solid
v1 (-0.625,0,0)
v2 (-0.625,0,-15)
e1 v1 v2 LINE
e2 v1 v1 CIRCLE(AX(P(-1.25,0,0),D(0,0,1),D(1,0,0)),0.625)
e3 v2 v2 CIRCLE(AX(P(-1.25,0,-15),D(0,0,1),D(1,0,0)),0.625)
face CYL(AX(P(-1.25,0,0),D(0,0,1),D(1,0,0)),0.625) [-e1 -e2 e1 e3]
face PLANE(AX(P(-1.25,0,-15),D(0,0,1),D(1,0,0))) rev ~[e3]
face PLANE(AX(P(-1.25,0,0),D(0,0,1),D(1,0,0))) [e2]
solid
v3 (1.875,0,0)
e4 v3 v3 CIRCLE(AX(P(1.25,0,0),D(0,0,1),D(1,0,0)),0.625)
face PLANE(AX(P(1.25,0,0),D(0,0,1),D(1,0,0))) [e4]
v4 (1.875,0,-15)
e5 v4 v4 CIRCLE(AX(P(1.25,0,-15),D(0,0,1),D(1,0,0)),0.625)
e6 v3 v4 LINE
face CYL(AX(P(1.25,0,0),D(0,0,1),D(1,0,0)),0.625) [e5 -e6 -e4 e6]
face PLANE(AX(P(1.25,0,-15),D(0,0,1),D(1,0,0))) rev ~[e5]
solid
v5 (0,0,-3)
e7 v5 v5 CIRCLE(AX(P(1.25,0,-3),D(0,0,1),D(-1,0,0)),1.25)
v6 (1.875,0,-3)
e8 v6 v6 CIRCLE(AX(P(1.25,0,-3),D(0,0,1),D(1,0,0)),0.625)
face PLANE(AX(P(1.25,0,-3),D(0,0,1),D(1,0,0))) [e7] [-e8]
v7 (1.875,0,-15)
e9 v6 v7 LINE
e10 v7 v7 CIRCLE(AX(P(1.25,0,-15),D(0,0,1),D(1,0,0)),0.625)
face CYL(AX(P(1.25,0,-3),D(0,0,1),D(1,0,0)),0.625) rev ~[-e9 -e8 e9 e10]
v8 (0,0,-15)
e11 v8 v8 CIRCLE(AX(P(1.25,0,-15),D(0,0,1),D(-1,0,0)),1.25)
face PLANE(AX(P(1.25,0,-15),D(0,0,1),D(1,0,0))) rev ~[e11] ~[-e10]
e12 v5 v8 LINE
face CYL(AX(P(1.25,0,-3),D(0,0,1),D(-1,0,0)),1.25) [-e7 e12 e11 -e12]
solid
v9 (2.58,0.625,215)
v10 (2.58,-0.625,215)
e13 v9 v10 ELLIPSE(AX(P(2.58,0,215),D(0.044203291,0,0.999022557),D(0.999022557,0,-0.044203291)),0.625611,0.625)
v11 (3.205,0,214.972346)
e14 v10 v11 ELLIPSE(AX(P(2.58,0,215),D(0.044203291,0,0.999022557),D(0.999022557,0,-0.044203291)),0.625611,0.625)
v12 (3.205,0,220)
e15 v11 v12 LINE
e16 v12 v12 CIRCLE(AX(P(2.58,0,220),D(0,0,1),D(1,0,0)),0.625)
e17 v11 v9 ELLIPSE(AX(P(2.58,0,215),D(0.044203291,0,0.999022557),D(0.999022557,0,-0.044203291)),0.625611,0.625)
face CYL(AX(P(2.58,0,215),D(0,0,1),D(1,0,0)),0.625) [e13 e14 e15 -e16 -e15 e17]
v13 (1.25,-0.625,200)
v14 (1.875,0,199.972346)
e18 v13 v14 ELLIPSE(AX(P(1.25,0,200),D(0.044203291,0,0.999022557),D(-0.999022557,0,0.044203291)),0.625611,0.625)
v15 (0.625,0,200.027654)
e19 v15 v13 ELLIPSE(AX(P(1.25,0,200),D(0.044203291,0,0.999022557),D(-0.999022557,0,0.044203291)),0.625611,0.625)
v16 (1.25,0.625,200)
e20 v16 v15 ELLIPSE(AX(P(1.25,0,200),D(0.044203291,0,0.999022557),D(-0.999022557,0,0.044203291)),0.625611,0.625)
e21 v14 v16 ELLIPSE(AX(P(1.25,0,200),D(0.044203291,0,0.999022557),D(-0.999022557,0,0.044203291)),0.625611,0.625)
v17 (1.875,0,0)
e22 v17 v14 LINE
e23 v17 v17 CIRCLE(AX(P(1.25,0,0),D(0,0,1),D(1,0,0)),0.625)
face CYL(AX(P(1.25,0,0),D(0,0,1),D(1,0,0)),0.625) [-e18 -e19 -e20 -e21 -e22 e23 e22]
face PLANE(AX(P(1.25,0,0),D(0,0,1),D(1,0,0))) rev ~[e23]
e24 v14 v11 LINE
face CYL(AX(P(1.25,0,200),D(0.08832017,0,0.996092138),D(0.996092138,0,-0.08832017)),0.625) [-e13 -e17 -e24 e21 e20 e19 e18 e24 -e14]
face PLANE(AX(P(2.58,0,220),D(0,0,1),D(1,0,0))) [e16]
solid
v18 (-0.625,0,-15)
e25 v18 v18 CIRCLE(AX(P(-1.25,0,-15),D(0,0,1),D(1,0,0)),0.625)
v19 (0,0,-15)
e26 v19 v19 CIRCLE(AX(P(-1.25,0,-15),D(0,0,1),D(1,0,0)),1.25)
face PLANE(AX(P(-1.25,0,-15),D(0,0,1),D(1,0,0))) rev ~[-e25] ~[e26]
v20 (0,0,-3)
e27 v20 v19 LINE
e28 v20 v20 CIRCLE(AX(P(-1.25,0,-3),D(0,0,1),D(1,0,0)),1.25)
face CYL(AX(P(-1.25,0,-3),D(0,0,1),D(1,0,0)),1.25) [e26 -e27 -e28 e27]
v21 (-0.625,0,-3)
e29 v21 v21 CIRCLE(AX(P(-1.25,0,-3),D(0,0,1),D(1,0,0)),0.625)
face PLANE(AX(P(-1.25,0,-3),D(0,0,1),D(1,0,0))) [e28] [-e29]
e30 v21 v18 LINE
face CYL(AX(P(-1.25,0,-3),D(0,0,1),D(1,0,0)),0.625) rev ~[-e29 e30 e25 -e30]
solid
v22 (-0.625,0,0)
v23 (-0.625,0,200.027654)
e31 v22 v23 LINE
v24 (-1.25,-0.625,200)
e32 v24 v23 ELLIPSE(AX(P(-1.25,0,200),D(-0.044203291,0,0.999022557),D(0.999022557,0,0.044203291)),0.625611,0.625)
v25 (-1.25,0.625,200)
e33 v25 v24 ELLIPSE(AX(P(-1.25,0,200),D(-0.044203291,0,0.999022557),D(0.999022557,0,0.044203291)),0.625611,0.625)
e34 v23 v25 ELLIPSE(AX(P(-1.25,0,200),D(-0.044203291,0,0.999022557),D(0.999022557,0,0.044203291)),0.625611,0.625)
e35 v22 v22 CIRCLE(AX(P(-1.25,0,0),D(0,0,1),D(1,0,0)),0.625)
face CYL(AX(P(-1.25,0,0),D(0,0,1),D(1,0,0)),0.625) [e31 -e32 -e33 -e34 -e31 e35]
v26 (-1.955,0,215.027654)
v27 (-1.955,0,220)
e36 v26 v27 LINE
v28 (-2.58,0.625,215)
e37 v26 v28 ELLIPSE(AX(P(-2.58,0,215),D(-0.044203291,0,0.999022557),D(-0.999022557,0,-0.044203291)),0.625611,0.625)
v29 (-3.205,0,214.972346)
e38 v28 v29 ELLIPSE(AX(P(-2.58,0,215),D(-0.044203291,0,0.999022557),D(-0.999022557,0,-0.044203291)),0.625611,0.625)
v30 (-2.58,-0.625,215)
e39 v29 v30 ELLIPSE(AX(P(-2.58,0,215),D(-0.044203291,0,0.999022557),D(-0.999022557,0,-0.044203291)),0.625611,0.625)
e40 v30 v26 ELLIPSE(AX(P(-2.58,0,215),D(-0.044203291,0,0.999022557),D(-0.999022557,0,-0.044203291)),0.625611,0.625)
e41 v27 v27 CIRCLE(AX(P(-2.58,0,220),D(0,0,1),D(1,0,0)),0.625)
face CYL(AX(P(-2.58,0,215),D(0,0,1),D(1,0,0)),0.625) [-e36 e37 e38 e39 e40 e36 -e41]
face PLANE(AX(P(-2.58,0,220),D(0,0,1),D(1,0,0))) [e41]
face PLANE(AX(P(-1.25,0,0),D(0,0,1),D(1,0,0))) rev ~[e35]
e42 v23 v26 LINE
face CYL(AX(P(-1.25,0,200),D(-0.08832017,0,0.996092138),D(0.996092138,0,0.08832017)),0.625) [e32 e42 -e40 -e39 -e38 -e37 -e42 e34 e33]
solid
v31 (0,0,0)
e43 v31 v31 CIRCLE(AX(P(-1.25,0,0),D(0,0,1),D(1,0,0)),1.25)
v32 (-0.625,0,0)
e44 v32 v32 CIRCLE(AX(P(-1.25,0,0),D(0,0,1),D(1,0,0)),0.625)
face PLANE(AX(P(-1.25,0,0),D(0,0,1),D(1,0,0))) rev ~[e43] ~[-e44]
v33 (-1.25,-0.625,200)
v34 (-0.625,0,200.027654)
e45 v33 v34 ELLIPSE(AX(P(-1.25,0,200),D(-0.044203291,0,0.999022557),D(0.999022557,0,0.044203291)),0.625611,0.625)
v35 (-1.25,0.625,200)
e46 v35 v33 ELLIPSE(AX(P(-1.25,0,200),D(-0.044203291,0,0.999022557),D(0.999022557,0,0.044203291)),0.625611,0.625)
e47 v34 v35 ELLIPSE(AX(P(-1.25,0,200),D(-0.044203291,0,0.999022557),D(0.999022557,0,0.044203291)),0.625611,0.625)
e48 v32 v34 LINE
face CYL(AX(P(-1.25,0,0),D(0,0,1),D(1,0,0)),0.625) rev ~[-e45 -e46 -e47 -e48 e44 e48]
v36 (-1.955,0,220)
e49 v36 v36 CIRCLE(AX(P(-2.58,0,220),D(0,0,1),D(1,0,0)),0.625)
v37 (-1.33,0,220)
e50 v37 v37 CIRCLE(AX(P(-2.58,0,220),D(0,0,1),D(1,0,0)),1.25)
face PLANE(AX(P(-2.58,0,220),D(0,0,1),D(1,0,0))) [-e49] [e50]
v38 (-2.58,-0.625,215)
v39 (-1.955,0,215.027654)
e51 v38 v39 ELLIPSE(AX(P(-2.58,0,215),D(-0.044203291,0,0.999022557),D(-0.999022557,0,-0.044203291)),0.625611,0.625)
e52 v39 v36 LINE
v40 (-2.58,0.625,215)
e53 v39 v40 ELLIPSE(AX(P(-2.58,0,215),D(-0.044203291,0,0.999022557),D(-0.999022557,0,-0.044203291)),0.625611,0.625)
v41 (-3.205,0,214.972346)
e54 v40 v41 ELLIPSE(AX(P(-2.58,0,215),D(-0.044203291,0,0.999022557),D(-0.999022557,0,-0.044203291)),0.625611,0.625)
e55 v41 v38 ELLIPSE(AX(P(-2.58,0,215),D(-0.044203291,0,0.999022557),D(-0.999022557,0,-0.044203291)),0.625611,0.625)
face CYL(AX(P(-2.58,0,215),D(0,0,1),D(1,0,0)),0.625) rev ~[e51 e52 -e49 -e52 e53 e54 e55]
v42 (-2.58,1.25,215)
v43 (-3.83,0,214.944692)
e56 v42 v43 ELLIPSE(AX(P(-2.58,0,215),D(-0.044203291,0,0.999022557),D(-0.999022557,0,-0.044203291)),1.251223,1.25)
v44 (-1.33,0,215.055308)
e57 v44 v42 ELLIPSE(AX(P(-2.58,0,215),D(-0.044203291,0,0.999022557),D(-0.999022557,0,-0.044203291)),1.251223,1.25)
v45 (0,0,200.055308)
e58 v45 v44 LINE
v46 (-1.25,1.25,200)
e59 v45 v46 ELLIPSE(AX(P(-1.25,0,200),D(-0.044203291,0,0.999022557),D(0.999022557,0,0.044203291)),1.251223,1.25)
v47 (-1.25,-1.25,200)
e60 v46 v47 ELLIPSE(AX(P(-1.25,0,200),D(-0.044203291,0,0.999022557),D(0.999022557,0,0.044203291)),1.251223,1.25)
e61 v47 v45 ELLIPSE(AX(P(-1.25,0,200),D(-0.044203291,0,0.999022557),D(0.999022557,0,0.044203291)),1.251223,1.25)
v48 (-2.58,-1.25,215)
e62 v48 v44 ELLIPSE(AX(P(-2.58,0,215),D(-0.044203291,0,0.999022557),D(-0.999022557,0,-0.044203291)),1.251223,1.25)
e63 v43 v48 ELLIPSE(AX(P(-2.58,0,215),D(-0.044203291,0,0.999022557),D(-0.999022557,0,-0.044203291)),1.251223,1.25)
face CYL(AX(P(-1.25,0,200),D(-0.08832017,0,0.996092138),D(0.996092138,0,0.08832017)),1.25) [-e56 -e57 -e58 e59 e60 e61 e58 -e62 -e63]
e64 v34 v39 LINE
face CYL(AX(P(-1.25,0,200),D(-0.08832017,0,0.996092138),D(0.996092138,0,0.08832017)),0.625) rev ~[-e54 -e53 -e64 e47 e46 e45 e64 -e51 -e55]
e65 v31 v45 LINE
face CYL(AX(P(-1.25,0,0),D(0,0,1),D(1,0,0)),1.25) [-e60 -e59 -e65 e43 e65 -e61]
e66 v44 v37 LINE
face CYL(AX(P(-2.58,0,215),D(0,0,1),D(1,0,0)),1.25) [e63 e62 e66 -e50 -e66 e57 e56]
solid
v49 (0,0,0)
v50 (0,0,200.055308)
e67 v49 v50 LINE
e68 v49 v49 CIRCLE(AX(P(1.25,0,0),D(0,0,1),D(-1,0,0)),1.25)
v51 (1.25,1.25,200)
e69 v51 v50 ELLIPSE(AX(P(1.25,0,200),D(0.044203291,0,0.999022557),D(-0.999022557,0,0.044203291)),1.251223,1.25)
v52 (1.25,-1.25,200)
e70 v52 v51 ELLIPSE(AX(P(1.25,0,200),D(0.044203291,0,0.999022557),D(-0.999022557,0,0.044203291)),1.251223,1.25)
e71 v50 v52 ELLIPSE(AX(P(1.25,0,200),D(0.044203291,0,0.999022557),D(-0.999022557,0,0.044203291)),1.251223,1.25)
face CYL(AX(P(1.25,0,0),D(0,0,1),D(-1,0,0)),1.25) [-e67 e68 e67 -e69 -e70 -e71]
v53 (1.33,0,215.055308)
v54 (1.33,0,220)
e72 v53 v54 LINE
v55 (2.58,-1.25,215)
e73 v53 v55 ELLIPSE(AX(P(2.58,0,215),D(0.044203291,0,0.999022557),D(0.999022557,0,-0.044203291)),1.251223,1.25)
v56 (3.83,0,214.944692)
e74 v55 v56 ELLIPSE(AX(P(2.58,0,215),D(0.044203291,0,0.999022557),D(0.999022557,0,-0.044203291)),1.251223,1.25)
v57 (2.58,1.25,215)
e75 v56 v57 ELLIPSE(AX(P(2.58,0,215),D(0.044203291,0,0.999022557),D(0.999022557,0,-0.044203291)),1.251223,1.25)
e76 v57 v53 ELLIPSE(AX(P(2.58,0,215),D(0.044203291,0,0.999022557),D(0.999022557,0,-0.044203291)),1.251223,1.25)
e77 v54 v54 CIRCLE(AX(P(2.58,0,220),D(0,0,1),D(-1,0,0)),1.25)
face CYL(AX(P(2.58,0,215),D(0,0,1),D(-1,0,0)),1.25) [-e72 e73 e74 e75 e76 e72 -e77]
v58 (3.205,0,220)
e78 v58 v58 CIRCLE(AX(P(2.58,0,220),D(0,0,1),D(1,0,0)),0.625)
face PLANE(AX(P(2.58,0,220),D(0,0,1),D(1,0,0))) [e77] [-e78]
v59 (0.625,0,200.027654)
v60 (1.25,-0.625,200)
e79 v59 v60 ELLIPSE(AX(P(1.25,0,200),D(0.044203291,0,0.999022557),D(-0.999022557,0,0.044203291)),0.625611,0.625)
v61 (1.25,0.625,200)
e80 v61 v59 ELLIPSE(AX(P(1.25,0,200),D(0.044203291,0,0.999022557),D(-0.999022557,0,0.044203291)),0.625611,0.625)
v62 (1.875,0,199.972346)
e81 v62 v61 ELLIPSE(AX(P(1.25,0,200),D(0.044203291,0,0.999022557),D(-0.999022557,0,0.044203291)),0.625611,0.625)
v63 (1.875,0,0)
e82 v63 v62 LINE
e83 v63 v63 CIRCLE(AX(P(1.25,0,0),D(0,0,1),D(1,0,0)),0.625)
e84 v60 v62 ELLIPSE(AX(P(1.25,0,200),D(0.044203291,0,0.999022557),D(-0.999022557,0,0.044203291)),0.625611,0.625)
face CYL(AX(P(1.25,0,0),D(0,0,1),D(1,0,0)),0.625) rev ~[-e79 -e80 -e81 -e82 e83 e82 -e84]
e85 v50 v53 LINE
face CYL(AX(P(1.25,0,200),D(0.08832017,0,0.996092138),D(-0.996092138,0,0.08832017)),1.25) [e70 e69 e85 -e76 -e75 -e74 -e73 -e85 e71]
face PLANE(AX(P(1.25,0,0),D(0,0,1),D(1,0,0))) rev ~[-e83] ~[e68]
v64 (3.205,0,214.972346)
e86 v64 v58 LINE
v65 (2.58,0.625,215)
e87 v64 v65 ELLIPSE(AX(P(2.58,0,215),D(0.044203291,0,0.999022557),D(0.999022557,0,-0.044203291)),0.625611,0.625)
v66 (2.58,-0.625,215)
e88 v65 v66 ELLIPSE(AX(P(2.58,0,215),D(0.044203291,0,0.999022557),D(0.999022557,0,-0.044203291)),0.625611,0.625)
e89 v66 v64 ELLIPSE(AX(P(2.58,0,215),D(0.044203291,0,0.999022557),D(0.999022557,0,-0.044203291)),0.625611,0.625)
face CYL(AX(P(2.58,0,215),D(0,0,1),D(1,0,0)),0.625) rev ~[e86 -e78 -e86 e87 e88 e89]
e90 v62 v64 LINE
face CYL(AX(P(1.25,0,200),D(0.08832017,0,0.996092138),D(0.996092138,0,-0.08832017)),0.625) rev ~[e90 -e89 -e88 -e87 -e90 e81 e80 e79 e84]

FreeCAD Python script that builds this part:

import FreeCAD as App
import Part
import Sketcher
Q = App.Units.Quantity

doc = App.newDocument("Part")
body = doc.addObject("PartDesign::Body", "Body")

# Sketch on XY plane
sketch1 = doc.addObject("Sketcher::SketchObject", "Sketch")
body.addObject(sketch1)
sketch1.AttachmentSupport = (doc.XY_Plane, [""])
sketch1.MapMode = "FlatFace"
sketch1.addGeometry(Part.Circle(App.Vector(1.2, 0, 0), App.Vector(0, 0, 1), 0.6), False)
sketch1.addConstraint([
    Sketcher.Constraint("PointOnObject", 0, 3, -1),
    Sketcher.Constraint("Diameter", 0, Q("1.25 mm")),
    Sketcher.Constraint("DistanceX", -1, 1, 0, 3, Q("1.25 mm")),
])

# Sketch on XZ plane
sketch2 = doc.addObject("Sketcher::SketchObject", "Sketch001")
body.addObject(sketch2)
sketch2.AttachmentSupport = (doc.XZ_Plane, [""])
sketch2.MapMode = "FlatFace"
sketch2.addGeometry([
    Part.LineSegment(App.Vector(1, 0, 0), App.Vector(1, 200, 0)),
    Part.LineSegment(App.Vector(1, 200, 0), App.Vector(3, 215, 0)),
    Part.LineSegment(App.Vector(3, 215, 0), App.Vector(3, 220, 0)),
], False)
sketch2.addConstraint([
    Sketcher.Constraint("Coincident", 0, 2, 1, 1),
    Sketcher.Constraint("Coincident", 1, 2, 2, 1),
    Sketcher.Constraint("Vertical", 0),
    Sketcher.Constraint("Vertical", 2),
    Sketcher.Constraint("PointOnObject", 0, 1, -1),
    Sketcher.Constraint("DistanceY", 0, 1, 0, 2, Q("200 mm")),
    Sketcher.Constraint("DistanceY", 2, 1, 2, 2, Q("5 mm")),
    Sketcher.Constraint("DistanceY", -1, 1, 1, 2, Q("215 mm")),
    Sketcher.Constraint("DistanceX", -1, 1, 0, 1, Q("1.25 mm")),
    Sketcher.Constraint("DistanceX", -1, 1, 1, 2, Q("2.58 mm")),
])
doc.recompute()

additivepipe = doc.addObject("PartDesign::AdditivePipe", "AdditivePipe")
body.addObject(additivepipe)
additivepipe.Profile = sketch1
additivepipe.Spine = (sketch2, ["Edge1", "Edge2", "Edge3"])
additivepipe.Transition = "Right corner"
body2 = doc.addObject("PartDesign::Body", "Body001")

# Sketch on XY plane
sketch3 = doc.addObject("Sketcher::SketchObject", "Sketch002")
body2.addObject(sketch3)
sketch3.AttachmentSupport = (doc.getObject("XY_Plane001"), [""])
sketch3.MapMode = "FlatFace"
sketch3.addGeometry(Part.Circle(App.Vector(-1.2, 0, 0), App.Vector(0, 0, 1), 0.6), False)
sketch3.addConstraint([
    Sketcher.Constraint("PointOnObject", 0, 3, -1),
    Sketcher.Constraint("Diameter", 0, Q("1.25 mm")),
    Sketcher.Constraint("DistanceX", 0, 3, -1, 1, Q("1.25 mm")),
])

# Sketch on XZ plane
sketch4 = doc.addObject("Sketcher::SketchObject", "Sketch003")
body2.addObject(sketch4)
sketch4.AttachmentSupport = (doc.getObject("XZ_Plane001"), [""])
sketch4.MapMode = "FlatFace"
sketch4.addGeometry([
    Part.LineSegment(App.Vector(-1, 0, 0), App.Vector(-1, 200, 0)),
    Part.LineSegment(App.Vector(-1, 200, 0), App.Vector(-3, 215, 0)),
    Part.LineSegment(App.Vector(-3, 215, 0), App.Vector(-3, 220, 0)),
], False)
sketch4.addConstraint([
    Sketcher.Constraint("Coincident", 0, 2, 1, 1),
    Sketcher.Constraint("Coincident", 1, 2, 2, 1),
    Sketcher.Constraint("Vertical", 0),
    Sketcher.Constraint("Vertical", 2),
    Sketcher.Constraint("PointOnObject", 0, 1, -1),
    Sketcher.Constraint("DistanceY", 0, 1, 0, 2, Q("200 mm")),
    Sketcher.Constraint("DistanceY", 2, 1, 2, 2, Q("5 mm")),
    Sketcher.Constraint("DistanceY", -1, 1, 1, 2, Q("215 mm")),
    Sketcher.Constraint("DistanceX", 0, 1, -1, 1, Q("1.25 mm")),
    Sketcher.Constraint("DistanceX", 1, 2, -1, 1, Q("2.58 mm")),
])
doc.recompute()

additivepipe2 = doc.addObject("PartDesign::AdditivePipe", "AdditivePipe001")
body2.addObject(additivepipe2)
additivepipe2.Profile = sketch3
additivepipe2.Spine = (sketch4, ["Edge1", "Edge2", "Edge3"])
additivepipe2.Transition = "Right corner"
body3 = doc.addObject("PartDesign::Body", "Body002")

# Sketch on XY plane
sketch5 = doc.addObject("Sketcher::SketchObject", "Sketch004")
body3.addObject(sketch5)
sketch5.AttachmentSupport = (doc.getObject("XY_Plane002"), [""])
sketch5.MapMode = "FlatFace"
sketch5.addGeometry([
    Part.Circle(App.Vector(1.2, 0, 0), App.Vector(0, 0, 1), 1.2),
    Part.Circle(App.Vector(1.2, 0, 0), App.Vector(0, 0, 1), 0.6),
], False)
sketch5.addConstraint([
    Sketcher.Constraint("Coincident", 1, 3, 0, 3),
    Sketcher.Constraint("PointOnObject", 0, 3, -1),
    Sketcher.Constraint("Diameter", 0, Q("2.5 mm")),
    Sketcher.Constraint("Diameter", 1, Q("1.25 mm")),
    Sketcher.Constraint("DistanceX", -1, 1, 0, 3, Q("1.25 mm")),
])

# Sketch on XZ plane
sketch6 = doc.addObject("Sketcher::SketchObject", "Sketch005")
body3.addObject(sketch6)
sketch6.AttachmentSupport = (doc.getObject("XZ_Plane002"), [""])
sketch6.MapMode = "FlatFace"
sketch6.addGeometry([
    Part.LineSegment(App.Vector(1, 0, 0), App.Vector(1, 200, 0)),
    Part.LineSegment(App.Vector(1, 200, 0), App.Vector(3, 215, 0)),
    Part.LineSegment(App.Vector(3, 215, 0), App.Vector(3, 220, 0)),
], False)
sketch6.addConstraint([
    Sketcher.Constraint("Coincident", 0, 2, 1, 1),
    Sketcher.Constraint("Coincident", 1, 2, 2, 1),
    Sketcher.Constraint("Vertical", 0),
    Sketcher.Constraint("Vertical", 2),
    Sketcher.Constraint("PointOnObject", 0, 1, -1),
    Sketcher.Constraint("DistanceY", 0, 1, 0, 2, Q("200 mm")),
    Sketcher.Constraint("DistanceY", 2, 1, 2, 2, Q("5 mm")),
    Sketcher.Constraint("DistanceY", -1, 1, 1, 2, Q("215 mm")),
    Sketcher.Constraint("DistanceX", -1, 1, 0, 1, Q("1.25 mm")),
    Sketcher.Constraint("DistanceX", -1, 1, 1, 2, Q("2.58 mm")),
])
doc.recompute()

additivepipe3 = doc.addObject("PartDesign::AdditivePipe", "AdditivePipe002")
body3.addObject(additivepipe3)
additivepipe3.Profile = sketch5
additivepipe3.Spine = (sketch6, ["Edge1", "Edge2", "Edge3"])
additivepipe3.Transition = "Right corner"
body4 = doc.addObject("PartDesign::Body", "Body003")

# Sketch on XY plane
sketch7 = doc.addObject("Sketcher::SketchObject", "Sketch006")
body4.addObject(sketch7)
sketch7.AttachmentSupport = (doc.getObject("XY_Plane003"), [""])
sketch7.MapMode = "FlatFace"
sketch7.addGeometry([
    Part.Circle(App.Vector(-1.2, 0, 0), App.Vector(0, 0, 1), 1.2),
    Part.Circle(App.Vector(-1.2, 0, 0), App.Vector(0, 0, 1), 0.6),
], False)
sketch7.addConstraint([
    Sketcher.Constraint("Coincident", 1, 3, 0, 3),
    Sketcher.Constraint("PointOnObject", 0, 3, -1),
    Sketcher.Constraint("Diameter", 0, Q("2.5 mm")),
    Sketcher.Constraint("Diameter", 1, Q("1.25 mm")),
    Sketcher.Constraint("DistanceX", 0, 3, -1, 1, Q("1.25 mm")),
])

# Sketch on XZ plane
sketch8 = doc.addObject("Sketcher::SketchObject", "Sketch007")
body4.addObject(sketch8)
sketch8.AttachmentSupport = (doc.getObject("XZ_Plane003"), [""])
sketch8.MapMode = "FlatFace"
sketch8.addGeometry([
    Part.LineSegment(App.Vector(-1, 0, 0), App.Vector(-1, 200, 0)),
    Part.LineSegment(App.Vector(-1, 200, 0), App.Vector(-3, 215, 0)),
    Part.LineSegment(App.Vector(-3, 215, 0), App.Vector(-3, 220, 0)),
], False)
sketch8.addConstraint([
    Sketcher.Constraint("Coincident", 0, 2, 1, 1),
    Sketcher.Constraint("Coincident", 1, 2, 2, 1),
    Sketcher.Constraint("Vertical", 0),
    Sketcher.Constraint("Vertical", 2),
    Sketcher.Constraint("PointOnObject", 0, 1, -1),
    Sketcher.Constraint("DistanceY", 0, 1, 0, 2, Q("200 mm")),
    Sketcher.Constraint("DistanceY", 2, 1, 2, 2, Q("5 mm")),
    Sketcher.Constraint("DistanceY", -1, 1, 1, 2, Q("215 mm")),
    Sketcher.Constraint("DistanceX", 0, 1, -1, 1, Q("1.25 mm")),
    Sketcher.Constraint("DistanceX", 1, 2, -1, 1, Q("2.58 mm")),
])
doc.recompute()

additivepipe4 = doc.addObject("PartDesign::AdditivePipe", "AdditivePipe003")
body4.addObject(additivepipe4)
additivepipe4.Profile = sketch7
additivepipe4.Spine = (sketch8, ["Edge1", "Edge2", "Edge3"])
additivepipe4.Transition = "Right corner"
body5 = doc.addObject("PartDesign::Body", "Body004")

# Sketch on XY plane
sketch9 = doc.addObject("Sketcher::SketchObject", "Sketch008")
body5.addObject(sketch9)
sketch9.AttachmentSupport = (doc.getObject("XY_Plane004"), [""])
sketch9.MapMode = "FlatFace"
sketch9.addGeometry(Part.Circle(App.Vector(-1.2, 0, 0), App.Vector(0, 0, 1), 0.6), False)
sketch9.addConstraint([
    Sketcher.Constraint("PointOnObject", 0, 3, -1),
    Sketcher.Constraint("Diameter", 0, Q("1.25 mm")),
    Sketcher.Constraint("DistanceX", 0, 3, -1, 1, Q("1.25 mm")),
])
pad1 = doc.addObject("PartDesign::Pad", "Pad")
body5.addObject(pad1)
pad1.Profile = sketch9
pad1.Length = 15
pad1.Reversed = True
body6 = doc.addObject("PartDesign::Body", "Body005")

# Sketch on XY plane
sketch10 = doc.addObject("Sketcher::SketchObject", "Sketch009")
body6.addObject(sketch10)
sketch10.AttachmentSupport = (doc.getObject("XY_Plane005"), [""])
sketch10.MapMode = "FlatFace"
sketch10.addGeometry(Part.Circle(App.Vector(1.2, 0, 0), App.Vector(0, 0, 1), 0.6), False)
sketch10.addConstraint([
    Sketcher.Constraint("PointOnObject", 0, 3, -1),
    Sketcher.Constraint("Diameter", 0, Q("1.25 mm")),
    Sketcher.Constraint("DistanceX", -1, 1, 0, 3, Q("1.25 mm")),
])
pad2 = doc.addObject("PartDesign::Pad", "Pad001")
body6.addObject(pad2)
pad2.Profile = sketch10
pad2.Length = 15
pad2.Reversed = True
body7 = doc.addObject("PartDesign::Body", "Body006")

# Sketch on XY plane
sketch11 = doc.addObject("Sketcher::SketchObject", "Sketch010")
body7.addObject(sketch11)
sketch11.AttachmentSupport = (doc.getObject("XY_Plane006"), [""])
sketch11.MapMode = "FlatFace"
sketch11.AttachmentOffset = App.Placement(App.Vector(0, 0, -3), App.Rotation())
sketch11.addGeometry([
    Part.Circle(App.Vector(-1.2, 0, 0), App.Vector(0, 0, 1), 1.2),
    Part.Circle(App.Vector(-1.2, 0, 0), App.Vector(0, 0, 1), 0.6),
], False)
sketch11.addConstraint([
    Sketcher.Constraint("Coincident", 1, 3, 0, 3),
    Sketcher.Constraint("PointOnObject", 0, 3, -1),
    Sketcher.Constraint("Diameter", 0, Q("2.5 mm")),
    Sketcher.Constraint("Diameter", 1, Q("1.25 mm")),
    Sketcher.Constraint("DistanceX", 0, 3, -1, 1, Q("1.25 mm")),
])
pad3 = doc.addObject("PartDesign::Pad", "Pad002")
body7.addObject(pad3)
pad3.Profile = sketch11
pad3.Length = 12
pad3.Reversed = True
body8 = doc.addObject("PartDesign::Body", "Body007")

# Sketch on XY plane
sketch12 = doc.addObject("Sketcher::SketchObject", "Sketch011")
body8.addObject(sketch12)
sketch12.AttachmentSupport = (doc.getObject("XY_Plane007"), [""])
sketch12.MapMode = "FlatFace"
sketch12.AttachmentOffset = App.Placement(App.Vector(0, 0, -3), App.Rotation())
sketch12.addGeometry([
    Part.Circle(App.Vector(1.2, 0, 0), App.Vector(0, 0, 1), 1.2),
    Part.Circle(App.Vector(1.2, 0, 0), App.Vector(0, 0, 1), 0.6),
], False)
sketch12.addConstraint([
    Sketcher.Constraint("Coincident", 1, 3, 0, 3),
    Sketcher.Constraint("PointOnObject", 0, 3, -1),
    Sketcher.Constraint("Diameter", 0, Q("2.5 mm")),
    Sketcher.Constraint("Diameter", 1, Q("1.25 mm")),
    Sketcher.Constraint("DistanceX", -1, 1, 0, 3, Q("1.25 mm")),
])
pad4 = doc.addObject("PartDesign::Pad", "Pad003")
body8.addObject(pad4)
pad4.Profile = sketch12
pad4.Length = 12
pad4.Reversed = True

doc.recompute()
